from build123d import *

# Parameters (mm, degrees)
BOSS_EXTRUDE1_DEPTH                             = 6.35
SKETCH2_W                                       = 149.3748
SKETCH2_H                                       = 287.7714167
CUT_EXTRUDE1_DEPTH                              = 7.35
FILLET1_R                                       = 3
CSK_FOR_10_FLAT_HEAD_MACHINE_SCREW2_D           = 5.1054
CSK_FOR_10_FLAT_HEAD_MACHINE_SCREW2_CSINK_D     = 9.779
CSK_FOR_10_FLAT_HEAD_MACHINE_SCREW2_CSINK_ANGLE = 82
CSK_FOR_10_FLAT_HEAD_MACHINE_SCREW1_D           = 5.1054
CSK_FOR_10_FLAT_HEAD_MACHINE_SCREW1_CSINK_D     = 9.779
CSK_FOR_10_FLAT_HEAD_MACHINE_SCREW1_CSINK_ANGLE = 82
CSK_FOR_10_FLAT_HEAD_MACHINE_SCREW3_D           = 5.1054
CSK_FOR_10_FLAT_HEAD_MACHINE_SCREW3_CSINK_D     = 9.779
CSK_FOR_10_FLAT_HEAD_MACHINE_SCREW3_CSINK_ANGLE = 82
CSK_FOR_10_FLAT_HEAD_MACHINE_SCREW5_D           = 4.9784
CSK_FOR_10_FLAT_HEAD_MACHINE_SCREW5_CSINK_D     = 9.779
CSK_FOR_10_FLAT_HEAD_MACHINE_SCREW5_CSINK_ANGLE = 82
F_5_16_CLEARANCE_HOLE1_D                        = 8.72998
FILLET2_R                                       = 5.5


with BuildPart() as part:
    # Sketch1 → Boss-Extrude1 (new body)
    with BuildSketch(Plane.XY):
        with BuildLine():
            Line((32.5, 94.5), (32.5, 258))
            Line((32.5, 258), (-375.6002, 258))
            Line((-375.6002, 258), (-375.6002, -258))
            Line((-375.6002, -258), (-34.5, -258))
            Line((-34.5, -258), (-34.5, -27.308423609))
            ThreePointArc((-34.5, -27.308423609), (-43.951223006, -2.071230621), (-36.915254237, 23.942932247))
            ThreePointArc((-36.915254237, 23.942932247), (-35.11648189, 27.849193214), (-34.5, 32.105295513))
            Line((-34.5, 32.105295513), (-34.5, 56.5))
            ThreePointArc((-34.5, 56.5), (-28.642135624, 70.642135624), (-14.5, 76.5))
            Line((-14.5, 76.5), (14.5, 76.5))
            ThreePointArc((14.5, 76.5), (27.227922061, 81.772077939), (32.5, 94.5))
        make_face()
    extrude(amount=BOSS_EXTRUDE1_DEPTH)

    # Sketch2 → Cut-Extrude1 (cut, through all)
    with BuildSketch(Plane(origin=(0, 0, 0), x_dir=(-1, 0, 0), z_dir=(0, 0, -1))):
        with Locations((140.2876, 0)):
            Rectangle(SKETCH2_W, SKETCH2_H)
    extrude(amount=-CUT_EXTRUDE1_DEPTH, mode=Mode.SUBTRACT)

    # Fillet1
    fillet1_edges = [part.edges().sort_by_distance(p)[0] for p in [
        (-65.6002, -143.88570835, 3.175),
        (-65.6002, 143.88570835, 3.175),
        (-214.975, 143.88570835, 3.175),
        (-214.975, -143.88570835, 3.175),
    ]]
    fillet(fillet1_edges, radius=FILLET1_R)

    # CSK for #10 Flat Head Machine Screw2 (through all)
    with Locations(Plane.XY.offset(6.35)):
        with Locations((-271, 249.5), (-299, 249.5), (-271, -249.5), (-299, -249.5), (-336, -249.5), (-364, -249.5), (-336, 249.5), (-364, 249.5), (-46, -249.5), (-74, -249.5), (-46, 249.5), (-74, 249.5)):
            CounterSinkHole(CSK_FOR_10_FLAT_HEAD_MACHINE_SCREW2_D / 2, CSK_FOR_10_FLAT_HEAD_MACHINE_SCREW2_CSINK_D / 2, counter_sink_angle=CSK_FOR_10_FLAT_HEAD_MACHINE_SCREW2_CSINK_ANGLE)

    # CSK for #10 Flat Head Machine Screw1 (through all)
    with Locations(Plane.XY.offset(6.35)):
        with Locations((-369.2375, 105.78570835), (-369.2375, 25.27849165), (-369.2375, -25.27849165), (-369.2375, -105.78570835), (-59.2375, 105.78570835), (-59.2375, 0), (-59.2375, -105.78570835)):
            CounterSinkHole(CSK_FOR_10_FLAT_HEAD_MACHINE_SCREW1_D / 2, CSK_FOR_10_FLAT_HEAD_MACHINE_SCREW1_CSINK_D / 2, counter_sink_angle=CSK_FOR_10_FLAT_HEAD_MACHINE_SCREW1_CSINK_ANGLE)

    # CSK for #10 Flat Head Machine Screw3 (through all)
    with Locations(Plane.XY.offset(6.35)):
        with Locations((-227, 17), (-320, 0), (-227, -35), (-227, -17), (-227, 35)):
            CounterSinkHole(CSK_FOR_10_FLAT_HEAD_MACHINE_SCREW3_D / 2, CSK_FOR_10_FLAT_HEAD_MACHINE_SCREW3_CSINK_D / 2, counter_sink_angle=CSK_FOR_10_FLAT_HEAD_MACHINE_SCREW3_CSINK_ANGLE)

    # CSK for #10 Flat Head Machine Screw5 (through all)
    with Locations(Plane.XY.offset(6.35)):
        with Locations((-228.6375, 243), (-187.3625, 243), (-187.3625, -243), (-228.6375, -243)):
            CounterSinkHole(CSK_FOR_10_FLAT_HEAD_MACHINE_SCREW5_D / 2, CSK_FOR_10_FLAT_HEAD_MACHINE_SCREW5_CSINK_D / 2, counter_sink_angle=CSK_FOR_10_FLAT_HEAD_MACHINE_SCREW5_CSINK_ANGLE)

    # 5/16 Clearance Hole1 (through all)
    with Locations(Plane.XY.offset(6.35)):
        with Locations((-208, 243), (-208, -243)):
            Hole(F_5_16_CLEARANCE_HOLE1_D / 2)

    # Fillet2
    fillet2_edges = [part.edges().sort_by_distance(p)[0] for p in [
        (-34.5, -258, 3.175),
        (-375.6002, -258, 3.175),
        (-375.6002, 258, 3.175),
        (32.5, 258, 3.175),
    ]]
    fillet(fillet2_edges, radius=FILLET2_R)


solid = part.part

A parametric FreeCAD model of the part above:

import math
import FreeCAD as App
import Part
import Sketcher
Q = App.Units.Quantity


def edges_at(feature, points):
    """Names of the edges that pass closest to the given points."""
    edges = feature.Shape.Edges
    near = lambda p: min(range(len(edges)), key=lambda i: edges[i].distToShape(Part.Vertex(*p))[0])
    return sorted({f"Edge{near(p) + 1}" for p in points})


def add_polygon(sketch, points):
    """Adds a closed chain of lines whose ends are joined by coincident constraints."""
    first, n = sketch.GeometryCount, len(points)
    for a, b in zip(points, points[1:] + points[:1]):
        sketch.addGeometry(Part.LineSegment(App.Vector(*a, 0), App.Vector(*b, 0)), False)
    for i in range(n):
        sketch.addConstraint(Sketcher.Constraint("Coincident", first + i, 2, first + (i + 1) % n, 1))

doc = App.newDocument("Part")
body = doc.addObject("PartDesign::Body", "Body")

# Sketch on XY plane
sketch1 = body.newObject("Sketcher::SketchObject", "Sketch")
sketch1.AttachmentSupport = (doc.getObject("XY_Plane"), [""])
sketch1.MapMode = "FlatFace"
sketch1.addGeometry([
    Part.LineSegment(App.Vector(32.5, 94.5, 0), App.Vector(32.5, 258, 0)),  # 0
    Part.LineSegment(App.Vector(32.5, 258, 0), App.Vector(-375.6002, 258, 0)),  # 1
    Part.LineSegment(App.Vector(-375.6002, 258, 0), App.Vector(-375.6002, -258, 0)),  # 2
    Part.LineSegment(App.Vector(-375.6002, -258, 0), App.Vector(-34.5, -258, 0)),  # 3
    Part.LineSegment(App.Vector(-34.5, -258, 0), App.Vector(-34.5, -27.308424, 0)),  # 4
    Part.ArcOfCircle(Part.Circle(App.Vector(0, 0, 0), App.Vector(0, 0, 1), 44), math.radians(147.032888), math.radians(218.363324)),  # 5
    Part.ArcOfCircle(Part.Circle(App.Vector(-49.5, 32.105296, 0), App.Vector(0, 0, 1), 15), math.radians(-32.967112), math.radians(0)),  # 6
    Part.LineSegment(App.Vector(-34.5, 32.105296, 0), App.Vector(-34.5, 56.5, 0)),  # 7
    Part.ArcOfCircle(Part.Circle(App.Vector(-14.5, 56.5, 0), App.Vector(0, 0, 1), 20), math.radians(90), math.radians(180)),  # 8
    Part.LineSegment(App.Vector(-14.5, 76.5, 0), App.Vector(14.5, 76.5, 0)),  # 9
    Part.ArcOfCircle(Part.Circle(App.Vector(14.5, 94.5, 0), App.Vector(0, 0, 1), 18), math.radians(-90), math.radians(0)),  # 10
], False)
sketch1.addConstraint([
    Sketcher.Constraint("Coincident", 0, 2, 1, 1),
    Sketcher.Constraint("Coincident", 1, 2, 2, 1),
    Sketcher.Constraint("Coincident", 2, 2, 3, 1),
    Sketcher.Constraint("Coincident", 3, 2, 4, 1),
    Sketcher.Constraint("Coincident", 4, 2, 5, 2),
    Sketcher.Constraint("Tangent", 5, 1, 6, 1),
    Sketcher.Constraint("Tangent", 6, 2, 7, 1),
    Sketcher.Constraint("Tangent", 7, 2, 8, 2),
    Sketcher.Constraint("Tangent", 8, 1, 9, 1),
    Sketcher.Constraint("Tangent", 9, 2, 10, 1),
    Sketcher.Constraint("Tangent", 10, 2, 0, 1),
    Sketcher.Constraint("Vertical", 0),
    Sketcher.Constraint("Horizontal", 1),
    Sketcher.Constraint("Vertical", 2),
    Sketcher.Constraint("Horizontal", 3),
    Sketcher.Constraint("Vertical", 4),
    Sketcher.Constraint("Vertical", 7),
    Sketcher.Constraint("Horizontal", 9),
    Sketcher.Constraint("Coincident", 5, 3, -1, 1),
    Sketcher.Constraint("Vertical", 4, 2, 6, 2),
    Sketcher.Constraint("Radius", 5, Q("44 mm")),
    Sketcher.Constraint("Radius", 6, Q("15 mm")),
    Sketcher.Constraint("Radius", 8, Q("20 mm")),
    Sketcher.Constraint("Radius", 10, Q("18 mm")),
    Sketcher.Constraint("DistanceX", 9, 1, 9, 2, Q("29 mm")),
    Sketcher.Constraint("DistanceY", 2, 2, 2, 1, Q("516 mm")),
    Sketcher.Constraint("DistanceY", 0, 1, 0, 2, Q("163.5 mm")),
    Sketcher.Constraint("DistanceY", -1, 1, 0, 2, Q("258 mm")),
    Sketcher.Constraint("DistanceX", 6, 3, -1, 1, Q("49.5 mm")),
    Sketcher.Constraint("DistanceX", 1, 2, 1, 1, Q("408.1002 mm")),
])
pad1 = body.newObject("PartDesign::Pad", "Pad")
pad1.Profile = sketch1
pad1.Length = 6.35

# Sketch on XY plane
sketch2 = body.newObject("Sketcher::SketchObject", "Sketch001")
sketch2.AttachmentSupport = (doc.getObject("XY_Plane"), [""])
sketch2.MapMode = "FlatFace"
add_polygon(sketch2, [(-65.6002, 143.885708), (-65.6002, -143.885708), (-214.975, -143.885708), (-214.975, 143.885708)])  # lines 0-3
sketch2.addConstraint([
    Sketcher.Constraint("Vertical", 0),
    Sketcher.Constraint("Horizontal", 1),
    Sketcher.Constraint("Vertical", 2),
    Sketcher.Constraint("Horizontal", 3),
    Sketcher.Constraint("DistanceX", 1, 2, 1, 1, Q("149.3748 mm")),
    Sketcher.Constraint("DistanceX", 1, 2, -1, 1, Q("214.975 mm")),
    Sketcher.Constraint("DistanceY", 0, 2, 0, 1, Q("287.771417 mm")),
    Sketcher.Constraint("DistanceY", 0, 2, -1, 1, Q("143.885708 mm")),
])
pocket1 = body.newObject("PartDesign::Pocket", "Pocket")
pocket1.Profile = sketch2
pocket1.Type = "ThroughAll"
pocket1.Reversed = True
doc.recompute()

fillet = body.newObject("PartDesign::Fillet", "Fillet")
fillet.Base = (pocket1, edges_at(pocket1, [
    (-65.6, -143.886, 3.175),
    (-65.6, 143.886, 3.175),
    (-214.975, 143.886, 3.175),
    (-214.975, -143.886, 3.175),
]))
fillet.Radius = 3

# Sketch on XY plane
sketch3 = body.newObject("Sketcher::SketchObject", "Sketch002")
sketch3.AttachmentSupport = (doc.getObject("XY_Plane"), [""])
sketch3.MapMode = "FlatFace"
sketch3.AttachmentOffset = App.Placement(App.Vector(0, 0, 6.35), App.Rotation())
sketch3.addGeometry([
    Part.Circle(App.Vector(-271, 249.5, 0), App.Vector(0, 0, 1), 2.5527),  # 0
    Part.Circle(App.Vector(-299, 249.5, 0), App.Vector(0, 0, 1), 2.5527),  # 1
    Part.Circle(App.Vector(-271, -249.5, 0), App.Vector(0, 0, 1), 2.5527),  # 2
    Part.Circle(App.Vector(-299, -249.5, 0), App.Vector(0, 0, 1), 2.5527),  # 3
    Part.Circle(App.Vector(-336, -249.5, 0), App.Vector(0, 0, 1), 2.5527),  # 4
    Part.Circle(App.Vector(-364, -249.5, 0), App.Vector(0, 0, 1), 2.5527),  # 5
    Part.Circle(App.Vector(-336, 249.5, 0), App.Vector(0, 0, 1), 2.5527),  # 6
    Part.Circle(App.Vector(-364, 249.5, 0), App.Vector(0, 0, 1), 2.5527),  # 7
    Part.Circle(App.Vector(-46, -249.5, 0), App.Vector(0, 0, 1), 2.5527),  # 8
    Part.Circle(App.Vector(-74, -249.5, 0), App.Vector(0, 0, 1), 2.5527),  # 9
    Part.Circle(App.Vector(-46, 249.5, 0), App.Vector(0, 0, 1), 2.5527),  # 10
    Part.Circle(App.Vector(-74, 249.5, 0), App.Vector(0, 0, 1), 2.5527),  # 11
], False)
sketch3.addConstraint([
    Sketcher.Constraint("Equal", 0, 1),
    Sketcher.Constraint("Equal", 1, 2),
    Sketcher.Constraint("Equal", 2, 3),
    Sketcher.Constraint("Equal", 3, 4),
    Sketcher.Constraint("Equal", 4, 5),
    Sketcher.Constraint("Equal", 5, 6),
    Sketcher.Constraint("Equal", 6, 7),
    Sketcher.Constraint("Equal", 7, 8),
    Sketcher.Constraint("Equal", 8, 9),
    Sketcher.Constraint("Equal", 9, 10),
    Sketcher.Constraint("Equal", 10, 11),
    Sketcher.Constraint("Symmetric", 0, 3, 2, 3, -1),
    Sketcher.Constraint("Symmetric", 1, 3, 3, 3, -1),
    Sketcher.Constraint("Symmetric", 4, 3, 6, 3, -1),
    Sketcher.Constraint("Symmetric", 5, 3, 7, 3, -1),
    Sketcher.Constraint("Symmetric", 8, 3, 10, 3, -1),
    Sketcher.Constraint("Symmetric", 9, 3, 11, 3, -1),
    Sketcher.Constraint("Horizontal", 0, 3, 1, 3),
    Sketcher.Constraint("Horizontal", 3, 3, 4, 3),
    Sketcher.Constraint("Horizontal", 4, 3, 5, 3),
    Sketcher.Constraint("Horizontal", 5, 3, 8, 3),
    Sketcher.Constraint("Horizontal", 8, 3, 9, 3),
    Sketcher.Constraint("DistanceX", 0, 3, -1, 1, Q("271 mm")),
    Sketcher.Constraint("DistanceX", 1, 3, -1, 1, Q("299 mm")),
    Sketcher.Constraint("DistanceX", 4, 3, -1, 1, Q("336 mm")),
    Sketcher.Constraint("DistanceX", 5, 3, -1, 1, Q("364 mm")),
    Sketcher.Constraint("DistanceX", 8, 3, -1, 1, Q("46 mm")),
    Sketcher.Constraint("DistanceX", 9, 3, -1, 1, Q("74 mm")),
    Sketcher.Constraint("DistanceY", 2, 3, 0, 3, Q("499 mm")),
    Sketcher.Constraint("Diameter", 0, Q("5.1054 mm")),
])
doc.recompute()
hole = body.newObject("PartDesign::Hole", "Hole")
hole.Profile = sketch3
hole.ThreadType = "None"
hole.Diameter = 5.1054
hole.DepthType = "ThroughAll"
hole.HoleCutType = "Countersink"
hole.HoleCutDiameter = 9.779
hole.HoleCutCountersinkAngle = 82

# Sketch on XY plane
sketch4 = body.newObject("Sketcher::SketchObject", "Sketch003")
sketch4.AttachmentSupport = (doc.getObject("XY_Plane"), [""])
sketch4.MapMode = "FlatFace"
sketch4.AttachmentOffset = App.Placement(App.Vector(0, 0, 6.35), App.Rotation())
sketch4.addGeometry([
    Part.Circle(App.Vector(-369.2375, 105.785708, 0), App.Vector(0, 0, 1), 2.5527),  # 0
    Part.Circle(App.Vector(-369.2375, 25.278492, 0), App.Vector(0, 0, 1), 2.5527),  # 1
    Part.Circle(App.Vector(-369.2375, -25.278492, 0), App.Vector(0, 0, 1), 2.5527),  # 2
    Part.Circle(App.Vector(-369.2375, -105.785708, 0), App.Vector(0, 0, 1), 2.5527),  # 3
    Part.Circle(App.Vector(-59.2375, 105.785708, 0), App.Vector(0, 0, 1), 2.5527),  # 4
    Part.Circle(App.Vector(-59.2375, 0, 0), App.Vector(0, 0, 1), 2.5527),  # 5
    Part.Circle(App.Vector(-59.2375, -105.785708, 0), App.Vector(0, 0, 1), 2.5527),  # 6
], False)
sketch4.addConstraint([
    Sketcher.Constraint("Equal", 0, 1),
    Sketcher.Constraint("Equal", 1, 2),
    Sketcher.Constraint("Equal", 2, 3),
    Sketcher.Constraint("Equal", 3, 4),
    Sketcher.Constraint("Equal", 4, 5),
    Sketcher.Constraint("Equal", 5, 6),
    Sketcher.Constraint("Symmetric", 1, 3, 2, 3, -1),
    Sketcher.Constraint("Symmetric", 0, 3, 3, 3, -1),
    Sketcher.Constraint("Symmetric", 4, 3, 6, 3, -1),
    Sketcher.Constraint("PointOnObject", 5, 3, -1),
    Sketcher.Constraint("Horizontal", 0, 3, 4, 3),
    Sketcher.Constraint("Vertical", 0, 3, 1, 3),
    Sketcher.Constraint("Vertical", 4, 3, 5, 3),
    Sketcher.Constraint("DistanceX", 0, 3, 4, 3, Q("310 mm")),
    Sketcher.Constraint("Diameter", 0, Q("5.1054 mm")),
    Sketcher.Constraint("DistanceX", 0, 3, -1, 1, Q("369.2375 mm")),
    Sketcher.Constraint("DistanceY", 2, 3, 0, 3, Q("131.0642 mm")),
    Sketcher.Constraint("DistanceY", -1, 1, 0, 3, Q("105.785708 mm")),
])
doc.recompute()
hole2 = body.newObject("PartDesign::Hole", "Hole001")
hole2.Profile = sketch4
hole2.ThreadType = "None"
hole2.Diameter = 5.1054
hole2.DepthType = "ThroughAll"
hole2.HoleCutType = "Countersink"
hole2.HoleCutDiameter = 9.779
hole2.HoleCutCountersinkAngle = 82

# Sketch on XY plane
sketch5 = body.newObject("Sketcher::SketchObject", "Sketch004")
sketch5.AttachmentSupport = (doc.getObject("XY_Plane"), [""])
sketch5.MapMode = "FlatFace"
sketch5.AttachmentOffset = App.Placement(App.Vector(0, 0, 6.35), App.Rotation())
sketch5.addGeometry([
    Part.Circle(App.Vector(-227, 17, 0), App.Vector(0, 0, 1), 2.5527),  # 0
    Part.Circle(App.Vector(-320, 0, 0), App.Vector(0, 0, 1), 2.5527),  # 1
    Part.Circle(App.Vector(-227, -35, 0), App.Vector(0, 0, 1), 2.5527),  # 2
    Part.Circle(App.Vector(-227, -17, 0), App.Vector(0, 0, 1), 2.5527),  # 3
    Part.Circle(App.Vector(-227, 35, 0), App.Vector(0, 0, 1), 2.5527),  # 4
], False)
sketch5.addConstraint([
    Sketcher.Constraint("Equal", 0, 1),
    Sketcher.Constraint("Equal", 1, 2),
    Sketcher.Constraint("Equal", 2, 3),
    Sketcher.Constraint("Equal", 3, 4),
    Sketcher.Constraint("Symmetric", 0, 3, 3, 3, -1),
    Sketcher.Constraint("Symmetric", 2, 3, 4, 3, -1),
    Sketcher.Constraint("PointOnObject", 1, 3, -1),
    Sketcher.Constraint("Vertical", 0, 3, 2, 3),
    Sketcher.Constraint("DistanceX", 0, 3, -1, 1, Q("227 mm")),
    Sketcher.Constraint("DistanceY", -1, 1, 0, 3, Q("17 mm")),
    Sketcher.Constraint("DistanceX", 1, 3, -1, 1, Q("320 mm")),
    Sketcher.Constraint("DistanceY", 2, 3, -1, 1, Q("35 mm")),
    Sketcher.Constraint("Diameter", 0, Q("5.1054 mm")),
])
doc.recompute()
hole3 = body.newObject("PartDesign::Hole", "Hole002")
hole3.Profile = sketch5
hole3.ThreadType = "None"
hole3.Diameter = 5.1054
hole3.DepthType = "ThroughAll"
hole3.HoleCutType = "Countersink"
hole3.HoleCutDiameter = 9.779
hole3.HoleCutCountersinkAngle = 82

# Sketch on XY plane
sketch6 = body.newObject("Sketcher::SketchObject", "Sketch005")
sketch6.AttachmentSupport = (doc.getObject("XY_Plane"), [""])
sketch6.MapMode = "FlatFace"
sketch6.AttachmentOffset = App.Placement(App.Vector(0, 0, 6.35), App.Rotation())
sketch6.addGeometry([
    Part.Circle(App.Vector(-228.6375, 243, 0), App.Vector(0, 0, 1), 2.4892),
    Part.Circle(App.Vector(-187.3625, 243, 0), App.Vector(0, 0, 1), 2.4892),
    Part.Circle(App.Vector(-187.3625, -243, 0), App.Vector(0, 0, 1), 2.4892),
    Part.Circle(App.Vector(-228.6375, -243, 0), App.Vector(0, 0, 1), 2.4892),
], False)
sketch6.addConstraint([
    Sketcher.Constraint("Equal", 0, 1),
    Sketcher.Constraint("Equal", 1, 2),
    Sketcher.Constraint("Equal", 2, 3),
    Sketcher.Constraint("Symmetric", 1, 3, 2, 3, -1),
    Sketcher.Constraint("Symmetric", 0, 3, 3, 3, -1),
    Sketcher.Constraint("Horizontal", 0, 3, 1, 3),
    Sketcher.Constraint("DistanceY", -1, 1, 0, 3, Q("243 mm")),
    Sketcher.Constraint("Diameter", 0, Q("4.9784 mm")),
    Sketcher.Constraint("DistanceX", 0, 3, 1, 3, Q("41.275 mm")),
    Sketcher.Constraint("DistanceX", 0, 3, -1, 1, Q("228.6375 mm")),
])
doc.recompute()
hole4 = body.newObject("PartDesign::Hole", "Hole003")
hole4.Profile = sketch6
hole4.ThreadType = "None"
hole4.Diameter = 4.9784
hole4.DepthType = "ThroughAll"
hole4.HoleCutType = "Countersink"
hole4.HoleCutDiameter = 9.779
hole4.HoleCutCountersinkAngle = 82

# Sketch on XY plane
sketch7 = body.newObject("Sketcher::SketchObject", "Sketch006")
sketch7.AttachmentSupport = (doc.getObject("XY_Plane"), [""])
sketch7.MapMode = "FlatFace"
sketch7.AttachmentOffset = App.Placement(App.Vector(0, 0, 6.35), App.Rotation())
sketch7.addGeometry([
    Part.Circle(App.Vector(-208, 243, 0), App.Vector(0, 0, 1), 4.36499),
    Part.Circle(App.Vector(-208, -243, 0), App.Vector(0, 0, 1), 4.36499),
], False)
sketch7.addConstraint([
    Sketcher.Constraint("Equal", 0, 1),
    Sketcher.Constraint("Symmetric", 0, 3, 1, 3, -1),
    Sketcher.Constraint("DistanceX", 0, 3, -1, 1, Q("208 mm")),
    Sketcher.Constraint("DistanceY", -1, 1, 0, 3, Q("243 mm")),
    Sketcher.Constraint("Diameter", 0, Q("8.72998 mm")),
])
doc.recompute()
hole5 = body.newObject("PartDesign::Hole", "Hole004")
hole5.Profile = sketch7
hole5.ThreadType = "None"
hole5.Diameter = 8.72998
hole5.DepthType = "ThroughAll"
doc.recompute()

fillet2 = body.newObject("PartDesign::Fillet", "Fillet001")
fillet2.Base = (hole5, edges_at(hole5, [
    (-34.5, -258, 3.175),
    (-375.6, -258, 3.175),
    (-375.6, 258, 3.175),
    (32.5, 258, 3.175),
]))
fillet2.Radius = 5.5

doc.recompute()
